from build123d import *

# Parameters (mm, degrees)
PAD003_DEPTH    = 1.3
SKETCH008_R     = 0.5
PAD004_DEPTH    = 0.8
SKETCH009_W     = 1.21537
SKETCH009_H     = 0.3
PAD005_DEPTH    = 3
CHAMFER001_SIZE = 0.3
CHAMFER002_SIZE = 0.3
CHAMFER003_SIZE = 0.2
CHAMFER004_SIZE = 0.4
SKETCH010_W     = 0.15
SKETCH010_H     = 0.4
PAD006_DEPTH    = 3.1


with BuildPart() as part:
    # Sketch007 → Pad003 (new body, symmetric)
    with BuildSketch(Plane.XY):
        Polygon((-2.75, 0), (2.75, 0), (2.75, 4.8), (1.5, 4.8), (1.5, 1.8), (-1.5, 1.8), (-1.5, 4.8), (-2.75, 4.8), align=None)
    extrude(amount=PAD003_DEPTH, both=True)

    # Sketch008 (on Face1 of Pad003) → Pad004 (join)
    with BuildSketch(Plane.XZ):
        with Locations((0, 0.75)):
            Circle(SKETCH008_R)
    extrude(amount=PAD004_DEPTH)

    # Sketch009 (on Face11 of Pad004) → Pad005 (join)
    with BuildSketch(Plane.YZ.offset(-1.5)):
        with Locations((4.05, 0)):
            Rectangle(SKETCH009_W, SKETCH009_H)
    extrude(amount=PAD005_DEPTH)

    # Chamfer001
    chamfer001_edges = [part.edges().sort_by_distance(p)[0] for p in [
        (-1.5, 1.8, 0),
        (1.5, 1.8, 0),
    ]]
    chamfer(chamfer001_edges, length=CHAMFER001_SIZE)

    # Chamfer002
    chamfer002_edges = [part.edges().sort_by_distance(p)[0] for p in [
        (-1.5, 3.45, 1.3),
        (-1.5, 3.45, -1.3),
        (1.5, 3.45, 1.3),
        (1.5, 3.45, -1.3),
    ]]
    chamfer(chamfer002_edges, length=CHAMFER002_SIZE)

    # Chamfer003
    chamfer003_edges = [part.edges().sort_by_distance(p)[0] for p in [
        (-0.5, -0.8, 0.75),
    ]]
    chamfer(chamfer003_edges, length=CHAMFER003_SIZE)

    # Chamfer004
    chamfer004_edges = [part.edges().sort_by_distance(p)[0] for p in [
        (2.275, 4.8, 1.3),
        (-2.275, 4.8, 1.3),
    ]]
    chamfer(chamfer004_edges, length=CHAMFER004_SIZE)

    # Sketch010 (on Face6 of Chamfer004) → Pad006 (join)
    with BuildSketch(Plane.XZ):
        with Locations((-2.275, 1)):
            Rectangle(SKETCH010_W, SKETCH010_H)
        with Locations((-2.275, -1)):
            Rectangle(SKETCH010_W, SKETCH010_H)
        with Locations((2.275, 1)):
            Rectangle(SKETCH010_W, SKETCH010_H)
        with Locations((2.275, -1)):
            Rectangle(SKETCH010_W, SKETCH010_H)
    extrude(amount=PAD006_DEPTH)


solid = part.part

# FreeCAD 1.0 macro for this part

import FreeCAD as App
import Part
import Sketcher

V = App.Vector


def edges_at(feature, points):
    """Names of the edges that pass closest to the given points."""
    edges = feature.Shape.Edges
    near = lambda p: min(range(len(edges)), key=lambda i: edges[i].distToShape(Part.Vertex(*p))[0])
    return sorted({f"Edge{near(p) + 1}" for p in points})

doc = App.newDocument("Part")
body = doc.addObject("PartDesign::Body", "Body")

# Sketch on XY plane
sketch1 = doc.addObject("Sketcher::SketchObject", "Sketch")
body.addObject(sketch1)
sketch1.AttachmentSupport = (doc.XY_Plane, [""])
sketch1.MapMode = "FlatFace"
sketch1.addGeometry([
    Part.LineSegment(V(-2.8, 0, 0), V(2.8, 0, 0)),  # 0
    Part.LineSegment(V(2.8, 0, 0), V(2.8, 4.8, 0)),  # 1
    Part.LineSegment(V(2.8, 4.8, 0), V(1.5, 4.8, 0)),  # 2
    Part.LineSegment(V(1.5, 4.8, 0), V(1.5, 1.8, 0)),  # 3
    Part.LineSegment(V(1.5, 1.8, 0), V(-1.5, 1.8, 0)),  # 4
    Part.LineSegment(V(-1.5, 1.8, 0), V(-1.5, 4.8, 0)),  # 5
    Part.LineSegment(V(-1.5, 4.8, 0), V(-2.8, 4.8, 0)),  # 6
    Part.LineSegment(V(-2.8, 4.8, 0), V(-2.8, 0, 0)),  # 7
], False)
sketch1.addConstraint([
    Sketcher.Constraint("Coincident", 0, 2, 1, 1),
    Sketcher.Constraint("Coincident", 1, 2, 2, 1),
    Sketcher.Constraint("Coincident", 2, 2, 3, 1),
    Sketcher.Constraint("Coincident", 3, 2, 4, 1),
    Sketcher.Constraint("Coincident", 4, 2, 5, 1),
    Sketcher.Constraint("Coincident", 5, 2, 6, 1),
    Sketcher.Constraint("Coincident", 6, 2, 7, 1),
    Sketcher.Constraint("Coincident", 7, 2, 0, 1),
    Sketcher.Constraint("Horizontal", 0),
    Sketcher.Constraint("Vertical", 1),
    Sketcher.Constraint("Horizontal", 2),
    Sketcher.Constraint("Vertical", 3),
    Sketcher.Constraint("Horizontal", 4),
    Sketcher.Constraint("Vertical", 5),
    Sketcher.Constraint("Horizontal", 6),
    Sketcher.Constraint("Vertical", 7),
    Sketcher.Constraint("Symmetric", 0, 2, 7, 2, -1, 1),
    Sketcher.Constraint("Symmetric", 2, 2, 5, 2, -2),
    Sketcher.Constraint("Equal", 4, 3),
    Sketcher.Constraint("DistanceX", 4, 2, 4, 1, 3.0),
    Sketcher.Constraint("DistanceX", 0, 1, 0, 2, 5.5),
    Sketcher.Constraint("DistanceY", 1, 1, 1, 2, 4.8),
])
pad1 = doc.addObject("PartDesign::Pad", "Pad")
body.addObject(pad1)
pad1.Profile = sketch1
pad1.Length = 2.6
pad1.Midplane = True

# Sketch on XZ plane
sketch2 = doc.addObject("Sketcher::SketchObject", "Sketch001")
body.addObject(sketch2)
sketch2.AttachmentSupport = (doc.XZ_Plane, [""])
sketch2.MapMode = "FlatFace"
sketch2.addGeometry(Part.Circle(V(0, 0.8, 0), V(0, 0, 1), 0.5), False)
sketch2.addConstraint([
    Sketcher.Constraint("PointOnObject", 0, 3, -2),
    Sketcher.Constraint("Diameter", 0, 1.0),
    Sketcher.Constraint("DistanceY", -1, 1, 0, 3, 0.75),
])
pad2 = doc.addObject("PartDesign::Pad", "Pad001")
body.addObject(pad2)
pad2.Profile = sketch2
pad2.Length = 0.8

# Sketch on YZ plane
sketch3 = doc.addObject("Sketcher::SketchObject", "Sketch002")
body.addObject(sketch3)
sketch3.AttachmentSupport = (doc.YZ_Plane, [""])
sketch3.MapMode = "FlatFace"
sketch3.AttachmentOffset = App.Placement(V(0, 0, -1.5), App.Rotation())
sketch3.addGeometry([
    Part.LineSegment(V(3.44, 0.15, 0), V(3.44, -0.15, 0)),
    Part.LineSegment(V(3.44, -0.15, 0), V(4.66, -0.15, 0)),
    Part.LineSegment(V(4.66, -0.15, 0), V(4.66, 0.15, 0)),
    Part.LineSegment(V(4.66, 0.15, 0), V(3.44, 0.15, 0)),
], False)
sketch3.addConstraint([
    Sketcher.Constraint("Coincident", 0, 2, 1, 1),
    Sketcher.Constraint("Coincident", 1, 2, 2, 1),
    Sketcher.Constraint("Coincident", 2, 2, 3, 1),
    Sketcher.Constraint("Coincident", 3, 2, 0, 1),
    Sketcher.Constraint("Vertical", 0),
    Sketcher.Constraint("Horizontal", 1),
    Sketcher.Constraint("Vertical", 2),
    Sketcher.Constraint("Horizontal", 3),
    Sketcher.Constraint("DistanceY", 0, 2, 0, 1, 0.3),
    Sketcher.Constraint("DistanceY", 0, 2, -1, 1, 0.15),
    Sketcher.Constraint("DistanceX", 1, 1, 1, 2, 1.21537),
    Sketcher.Constraint("DistanceX", -1, 1, 0, 2, 3.442315),
])
pad3 = doc.addObject("PartDesign::Pad", "Pad002")
body.addObject(pad3)
pad3.Profile = sketch3
pad3.Length = 3
doc.recompute()

chamfer = doc.addObject("PartDesign::Chamfer", "Chamfer")
body.addObject(chamfer)
chamfer.Base = (pad3, edges_at(pad3, [(-1.5, 1.8, 0), (1.5, 1.8, 0)]))
chamfer.Size = 0.3
doc.recompute()

chamfer2 = doc.addObject("PartDesign::Chamfer", "Chamfer001")
body.addObject(chamfer2)
chamfer2.Base = (chamfer, edges_at(chamfer, [
    (-1.5, 3.45, 1.3),
    (-1.5, 3.45, -1.3),
    (1.5, 3.45, 1.3),
    (1.5, 3.45, -1.3),
]))
chamfer2.Size = 0.3
doc.recompute()

chamfer3 = doc.addObject("PartDesign::Chamfer", "Chamfer002")
body.addObject(chamfer3)
chamfer3.Base = (chamfer2, edges_at(chamfer2, [(-0.5, -0.8, 0.75)]))
chamfer3.Size = 0.2
doc.recompute()

chamfer4 = doc.addObject("PartDesign::Chamfer", "Chamfer003")
body.addObject(chamfer4)
chamfer4.Base = (chamfer3, edges_at(chamfer3, [(2.275, 4.8, 1.3), (-2.275, 4.8, 1.3)]))
chamfer4.Size = 0.4

# Sketch on XZ plane
sketch4 = doc.addObject("Sketcher::SketchObject", "Sketch003")
body.addObject(sketch4)
sketch4.AttachmentSupport = (doc.XZ_Plane, [""])
sketch4.MapMode = "FlatFace"
sketch4.addGeometry([
    Part.LineSegment(V(-2.35, 1.2, 0), V(-2.35, 0.8, 0)),  # 0
    Part.LineSegment(V(-2.35, 0.8, 0), V(-2.2, 0.8, 0)),  # 1
    Part.LineSegment(V(-2.2, 0.8, 0), V(-2.2, 1.2, 0)),  # 2
    Part.LineSegment(V(-2.2, 1.2, 0), V(-2.35, 1.2, 0)),  # 3
    Part.LineSegment(V(-2.35, -0.8, 0), V(-2.35, -1.2, 0)),  # 4
    Part.LineSegment(V(-2.35, -1.2, 0), V(-2.2, -1.2, 0)),  # 5
    Part.LineSegment(V(-2.2, -1.2, 0), V(-2.2, -0.8, 0)),  # 6
    Part.LineSegment(V(-2.2, -0.8, 0), V(-2.35, -0.8, 0)),  # 7
    Part.LineSegment(V(2.2, 1.2, 0), V(2.2, 0.8, 0)),  # 8
    Part.LineSegment(V(2.2, 0.8, 0), V(2.35, 0.8, 0)),  # 9
    Part.LineSegment(V(2.35, 0.8, 0), V(2.35, 1.2, 0)),  # 10
    Part.LineSegment(V(2.35, 1.2, 0), V(2.2, 1.2, 0)),  # 11
    Part.LineSegment(V(2.2, -0.8, 0), V(2.2, -1.2, 0)),  # 12
    Part.LineSegment(V(2.2, -1.2, 0), V(2.35, -1.2, 0)),  # 13
    Part.LineSegment(V(2.35, -1.2, 0), V(2.35, -0.8, 0)),  # 14
    Part.LineSegment(V(2.35, -0.8, 0), V(2.2, -0.8, 0)),  # 15
], False)
sketch4.addConstraint([
    Sketcher.Constraint("Coincident", 0, 2, 1, 1),
    Sketcher.Constraint("Coincident", 1, 2, 2, 1),
    Sketcher.Constraint("Coincident", 2, 2, 3, 1),
    Sketcher.Constraint("Coincident", 3, 2, 0, 1),
    Sketcher.Constraint("Coincident", 4, 2, 5, 1),
    Sketcher.Constraint("Coincident", 5, 2, 6, 1),
    Sketcher.Constraint("Coincident", 6, 2, 7, 1),
    Sketcher.Constraint("Coincident", 7, 2, 4, 1),
    Sketcher.Constraint("Coincident", 8, 2, 9, 1),
    Sketcher.Constraint("Coincident", 9, 2, 10, 1),
    Sketcher.Constraint("Coincident", 10, 2, 11, 1),
    Sketcher.Constraint("Coincident", 11, 2, 8, 1),
    Sketcher.Constraint("Coincident", 12, 2, 13, 1),
    Sketcher.Constraint("Coincident", 13, 2, 14, 1),
    Sketcher.Constraint("Coincident", 14, 2, 15, 1),
    Sketcher.Constraint("Coincident", 15, 2, 12, 1),
    Sketcher.Constraint("Vertical", 0),
    Sketcher.Constraint("Horizontal", 1),
    Sketcher.Constraint("Vertical", 2),
    Sketcher.Constraint("Horizontal", 3),
    Sketcher.Constraint("Vertical", 4),
    Sketcher.Constraint("Horizontal", 5),
    Sketcher.Constraint("Vertical", 6),
    Sketcher.Constraint("Horizontal", 7),
    Sketcher.Constraint("Vertical", 8),
    Sketcher.Constraint("Horizontal", 9),
    Sketcher.Constraint("Vertical", 10),
    Sketcher.Constraint("Horizontal", 11),
    Sketcher.Constraint("Vertical", 12),
    Sketcher.Constraint("Horizontal", 13),
    Sketcher.Constraint("Vertical", 14),
    Sketcher.Constraint("Horizontal", 15),
    Sketcher.Constraint("Symmetric", 6, 2, 8, 2, -1, 1),
    Sketcher.Constraint("Symmetric", 4, 2, 10, 2, -1, 1),
    Sketcher.Constraint("Symmetric", 2, 2, 12, 2, -1, 1),
    Sketcher.Constraint("Symmetric", 0, 2, 14, 2, -1, 1),
    Sketcher.Constraint("Symmetric", 1, 2, 8, 2, -2),
    Sketcher.Constraint("Symmetric", 3, 2, 10, 2, -2),
    Sketcher.Constraint("DistanceY", 0, 2, 0, 1, 0.4),
    Sketcher.Constraint("DistanceY", 4, 2, 0, 2, 2.0),
    Sketcher.Constraint("DistanceX", 1, 1, 1, 2, 0.15),
    Sketcher.Constraint("DistanceX", 1, 2, -1, 1, 2.2),
])
pad4 = doc.addObject("PartDesign::Pad", "Pad003")
body.addObject(pad4)
pad4.Profile = sketch4
pad4.Length = 3.1

doc.recompute()
